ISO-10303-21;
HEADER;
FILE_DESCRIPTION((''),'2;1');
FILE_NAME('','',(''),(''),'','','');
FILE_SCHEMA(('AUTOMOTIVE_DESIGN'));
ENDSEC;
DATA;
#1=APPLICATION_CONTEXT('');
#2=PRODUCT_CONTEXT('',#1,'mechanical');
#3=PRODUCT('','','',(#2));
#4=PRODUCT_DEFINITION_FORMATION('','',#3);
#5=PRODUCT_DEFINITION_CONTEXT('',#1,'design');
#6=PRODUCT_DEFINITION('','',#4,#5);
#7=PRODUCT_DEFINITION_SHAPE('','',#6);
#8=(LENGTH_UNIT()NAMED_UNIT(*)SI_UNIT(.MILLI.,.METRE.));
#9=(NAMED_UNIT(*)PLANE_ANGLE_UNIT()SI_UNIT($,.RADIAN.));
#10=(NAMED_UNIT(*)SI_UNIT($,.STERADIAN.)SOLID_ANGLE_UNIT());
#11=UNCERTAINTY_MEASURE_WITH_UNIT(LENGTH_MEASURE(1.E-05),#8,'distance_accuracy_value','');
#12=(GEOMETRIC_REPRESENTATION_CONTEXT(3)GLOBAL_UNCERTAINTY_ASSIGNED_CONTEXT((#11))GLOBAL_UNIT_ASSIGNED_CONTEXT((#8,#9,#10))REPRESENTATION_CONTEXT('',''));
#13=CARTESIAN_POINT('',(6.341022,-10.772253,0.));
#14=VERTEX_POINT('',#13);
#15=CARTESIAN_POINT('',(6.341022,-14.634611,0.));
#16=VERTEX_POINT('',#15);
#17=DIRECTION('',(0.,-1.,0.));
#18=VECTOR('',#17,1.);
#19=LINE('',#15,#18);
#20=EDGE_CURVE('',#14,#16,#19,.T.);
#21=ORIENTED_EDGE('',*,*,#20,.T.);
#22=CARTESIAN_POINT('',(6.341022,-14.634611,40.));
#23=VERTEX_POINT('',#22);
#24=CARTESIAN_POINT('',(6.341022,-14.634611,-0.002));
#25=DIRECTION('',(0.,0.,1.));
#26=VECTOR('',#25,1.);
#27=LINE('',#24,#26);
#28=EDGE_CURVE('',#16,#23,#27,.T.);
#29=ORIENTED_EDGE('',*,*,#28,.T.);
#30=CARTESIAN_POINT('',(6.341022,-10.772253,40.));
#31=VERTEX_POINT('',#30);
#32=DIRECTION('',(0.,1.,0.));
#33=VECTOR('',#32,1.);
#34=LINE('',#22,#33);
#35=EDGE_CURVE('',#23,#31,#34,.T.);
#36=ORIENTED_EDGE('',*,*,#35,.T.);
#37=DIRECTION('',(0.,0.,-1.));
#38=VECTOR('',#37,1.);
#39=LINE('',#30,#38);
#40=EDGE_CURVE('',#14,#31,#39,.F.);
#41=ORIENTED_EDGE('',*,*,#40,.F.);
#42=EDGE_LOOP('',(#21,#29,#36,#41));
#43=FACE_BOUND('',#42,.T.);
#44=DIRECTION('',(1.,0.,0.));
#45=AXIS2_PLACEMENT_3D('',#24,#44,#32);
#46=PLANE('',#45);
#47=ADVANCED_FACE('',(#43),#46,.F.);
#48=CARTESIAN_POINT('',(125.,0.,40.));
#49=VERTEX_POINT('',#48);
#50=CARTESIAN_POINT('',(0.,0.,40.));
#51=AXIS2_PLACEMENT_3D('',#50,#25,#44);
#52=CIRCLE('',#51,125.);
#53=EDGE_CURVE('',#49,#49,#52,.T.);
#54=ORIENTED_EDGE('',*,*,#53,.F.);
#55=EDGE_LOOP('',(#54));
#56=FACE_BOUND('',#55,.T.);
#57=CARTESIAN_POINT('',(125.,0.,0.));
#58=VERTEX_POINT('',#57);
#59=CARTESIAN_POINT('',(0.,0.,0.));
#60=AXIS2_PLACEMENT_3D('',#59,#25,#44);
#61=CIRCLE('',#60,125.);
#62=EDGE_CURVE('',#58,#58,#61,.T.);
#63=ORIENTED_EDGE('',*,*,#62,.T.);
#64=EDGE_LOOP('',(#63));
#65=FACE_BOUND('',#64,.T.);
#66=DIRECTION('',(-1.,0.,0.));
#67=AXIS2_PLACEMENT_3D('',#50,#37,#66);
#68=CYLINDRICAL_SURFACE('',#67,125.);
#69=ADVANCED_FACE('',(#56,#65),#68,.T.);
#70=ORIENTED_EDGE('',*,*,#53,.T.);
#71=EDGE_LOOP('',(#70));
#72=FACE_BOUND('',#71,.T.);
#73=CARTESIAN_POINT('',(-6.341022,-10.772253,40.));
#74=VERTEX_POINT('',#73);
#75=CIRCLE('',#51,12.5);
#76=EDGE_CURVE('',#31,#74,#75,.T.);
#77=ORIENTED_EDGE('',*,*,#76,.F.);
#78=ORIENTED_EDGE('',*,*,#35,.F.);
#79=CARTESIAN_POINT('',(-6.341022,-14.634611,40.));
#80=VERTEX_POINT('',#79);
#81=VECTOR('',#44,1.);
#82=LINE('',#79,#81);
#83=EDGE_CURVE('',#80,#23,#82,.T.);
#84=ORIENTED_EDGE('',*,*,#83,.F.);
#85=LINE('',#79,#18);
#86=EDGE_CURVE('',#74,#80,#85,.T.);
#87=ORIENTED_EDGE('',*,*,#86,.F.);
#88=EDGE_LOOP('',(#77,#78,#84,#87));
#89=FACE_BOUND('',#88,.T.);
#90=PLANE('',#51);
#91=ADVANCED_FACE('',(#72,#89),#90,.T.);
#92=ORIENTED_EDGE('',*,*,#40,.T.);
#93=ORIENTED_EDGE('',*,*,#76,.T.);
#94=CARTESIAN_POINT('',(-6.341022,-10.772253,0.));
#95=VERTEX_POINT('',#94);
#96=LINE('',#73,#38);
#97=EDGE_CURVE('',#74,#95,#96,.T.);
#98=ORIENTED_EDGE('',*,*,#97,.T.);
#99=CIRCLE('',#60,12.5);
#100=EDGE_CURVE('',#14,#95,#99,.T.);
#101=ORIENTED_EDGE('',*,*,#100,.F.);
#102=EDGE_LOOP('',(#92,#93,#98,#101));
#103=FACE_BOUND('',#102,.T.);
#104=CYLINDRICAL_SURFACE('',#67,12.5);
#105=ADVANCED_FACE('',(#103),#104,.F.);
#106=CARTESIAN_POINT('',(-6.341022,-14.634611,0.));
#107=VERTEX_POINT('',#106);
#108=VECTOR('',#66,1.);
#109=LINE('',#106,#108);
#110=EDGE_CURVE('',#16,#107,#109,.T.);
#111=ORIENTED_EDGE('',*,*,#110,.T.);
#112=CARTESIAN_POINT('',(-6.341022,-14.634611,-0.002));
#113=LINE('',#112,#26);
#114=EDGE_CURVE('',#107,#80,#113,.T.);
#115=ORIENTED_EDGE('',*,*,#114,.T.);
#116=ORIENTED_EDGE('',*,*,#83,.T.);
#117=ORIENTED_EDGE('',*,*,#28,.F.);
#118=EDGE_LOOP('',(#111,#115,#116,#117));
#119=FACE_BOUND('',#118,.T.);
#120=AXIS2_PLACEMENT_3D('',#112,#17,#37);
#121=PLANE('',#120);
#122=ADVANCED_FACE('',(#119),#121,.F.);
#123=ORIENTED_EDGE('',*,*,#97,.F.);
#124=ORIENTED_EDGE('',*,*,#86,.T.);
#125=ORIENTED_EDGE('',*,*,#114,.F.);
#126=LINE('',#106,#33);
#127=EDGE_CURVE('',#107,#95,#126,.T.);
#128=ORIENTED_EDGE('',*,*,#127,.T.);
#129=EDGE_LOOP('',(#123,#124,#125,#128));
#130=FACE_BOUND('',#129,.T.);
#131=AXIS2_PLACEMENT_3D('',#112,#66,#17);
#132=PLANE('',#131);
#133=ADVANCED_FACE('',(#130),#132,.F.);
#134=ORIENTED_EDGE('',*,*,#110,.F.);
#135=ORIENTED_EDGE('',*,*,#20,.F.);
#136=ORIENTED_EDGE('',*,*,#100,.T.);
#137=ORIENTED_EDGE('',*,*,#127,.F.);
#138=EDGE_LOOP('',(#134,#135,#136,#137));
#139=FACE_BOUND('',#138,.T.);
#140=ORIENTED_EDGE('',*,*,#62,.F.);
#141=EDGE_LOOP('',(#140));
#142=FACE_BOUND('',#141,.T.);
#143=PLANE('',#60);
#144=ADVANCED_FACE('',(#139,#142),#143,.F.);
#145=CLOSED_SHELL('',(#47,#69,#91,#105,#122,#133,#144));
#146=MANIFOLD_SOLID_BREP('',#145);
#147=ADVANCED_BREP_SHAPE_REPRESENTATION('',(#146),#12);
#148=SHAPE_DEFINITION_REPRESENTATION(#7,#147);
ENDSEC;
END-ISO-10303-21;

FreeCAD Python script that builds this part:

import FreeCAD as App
import Part
import Sketcher


def add_polygon(sketch, points):
    """Adds a closed chain of lines whose ends are joined by coincident constraints."""
    first, n = sketch.GeometryCount, len(points)
    for a, b in zip(points, points[1:] + points[:1]):
        sketch.addGeometry(Part.LineSegment(App.Vector(*a, 0), App.Vector(*b, 0)), False)
    for i in range(n):
        sketch.addConstraint(Sketcher.Constraint("Coincident", first + i, 2, first + (i + 1) % n, 1))

doc = App.newDocument("Part")
body = doc.addObject("PartDesign::Body", "Body")

sketch1 = doc.addObject("Sketcher::SketchObject", "Sketch")
body.addObject(sketch1)
sketch1.AttachmentSupport = (doc.XY_Plane, [""])
sketch1.MapMode = "FlatFace"
sketch1.addGeometry([
    Part.Circle(App.Vector(0, 0, 0), App.Vector(0, 0, 1), 125),
    Part.Circle(App.Vector(0, 0, 0), App.Vector(0, 0, 1), 12),
], False)
sketch1.addConstraint([
    Sketcher.Constraint("Coincident", 0, 3, -1, 1),
    Sketcher.Constraint("Coincident", 1, 3, -1, 1),
    Sketcher.Constraint("Diameter", 0, 250.0),
    Sketcher.Constraint("Diameter", 1, 25.0),
])
pad1 = doc.addObject("PartDesign::Pad", "Pad")
body.addObject(pad1)
pad1.Profile = sketch1
pad1.Length = 40

sketch2 = doc.addObject("Sketcher::SketchObject", "Sketch001")
body.addObject(sketch2)
sketch2.AttachmentSupport = (doc.XY_Plane, [""])
sketch2.MapMode = "FlatFace"
sketch2.AttachmentOffset = App.Placement(App.Vector(0, 0, 40), App.Rotation())
add_polygon(sketch2, [(-6, -9), (-6, -15), (6, -15), (6, -9)])
sketch2.addConstraint([
    Sketcher.Constraint("Vertical", 0),
    Sketcher.Constraint("Horizontal", 1),
    Sketcher.Constraint("Vertical", 2),
    Sketcher.Constraint("Horizontal", 3),
    Sketcher.Constraint("DistanceY", 0, 2, 0, 1, 5.674472),
    Sketcher.Constraint("DistanceX", 1, 1, 1, 2, 12.682043),
    Sketcher.Constraint("DistanceX", 0, 2, -1, 1, 6.341022),
    Sketcher.Constraint("DistanceY", 0, 2, -1, 1, 14.634611),
])
pocket1 = doc.addObject("PartDesign::Pocket", "Pocket")
body.addObject(pocket1)
pocket1.Profile = sketch2
pocket1.Length = 40

doc.recompute()
